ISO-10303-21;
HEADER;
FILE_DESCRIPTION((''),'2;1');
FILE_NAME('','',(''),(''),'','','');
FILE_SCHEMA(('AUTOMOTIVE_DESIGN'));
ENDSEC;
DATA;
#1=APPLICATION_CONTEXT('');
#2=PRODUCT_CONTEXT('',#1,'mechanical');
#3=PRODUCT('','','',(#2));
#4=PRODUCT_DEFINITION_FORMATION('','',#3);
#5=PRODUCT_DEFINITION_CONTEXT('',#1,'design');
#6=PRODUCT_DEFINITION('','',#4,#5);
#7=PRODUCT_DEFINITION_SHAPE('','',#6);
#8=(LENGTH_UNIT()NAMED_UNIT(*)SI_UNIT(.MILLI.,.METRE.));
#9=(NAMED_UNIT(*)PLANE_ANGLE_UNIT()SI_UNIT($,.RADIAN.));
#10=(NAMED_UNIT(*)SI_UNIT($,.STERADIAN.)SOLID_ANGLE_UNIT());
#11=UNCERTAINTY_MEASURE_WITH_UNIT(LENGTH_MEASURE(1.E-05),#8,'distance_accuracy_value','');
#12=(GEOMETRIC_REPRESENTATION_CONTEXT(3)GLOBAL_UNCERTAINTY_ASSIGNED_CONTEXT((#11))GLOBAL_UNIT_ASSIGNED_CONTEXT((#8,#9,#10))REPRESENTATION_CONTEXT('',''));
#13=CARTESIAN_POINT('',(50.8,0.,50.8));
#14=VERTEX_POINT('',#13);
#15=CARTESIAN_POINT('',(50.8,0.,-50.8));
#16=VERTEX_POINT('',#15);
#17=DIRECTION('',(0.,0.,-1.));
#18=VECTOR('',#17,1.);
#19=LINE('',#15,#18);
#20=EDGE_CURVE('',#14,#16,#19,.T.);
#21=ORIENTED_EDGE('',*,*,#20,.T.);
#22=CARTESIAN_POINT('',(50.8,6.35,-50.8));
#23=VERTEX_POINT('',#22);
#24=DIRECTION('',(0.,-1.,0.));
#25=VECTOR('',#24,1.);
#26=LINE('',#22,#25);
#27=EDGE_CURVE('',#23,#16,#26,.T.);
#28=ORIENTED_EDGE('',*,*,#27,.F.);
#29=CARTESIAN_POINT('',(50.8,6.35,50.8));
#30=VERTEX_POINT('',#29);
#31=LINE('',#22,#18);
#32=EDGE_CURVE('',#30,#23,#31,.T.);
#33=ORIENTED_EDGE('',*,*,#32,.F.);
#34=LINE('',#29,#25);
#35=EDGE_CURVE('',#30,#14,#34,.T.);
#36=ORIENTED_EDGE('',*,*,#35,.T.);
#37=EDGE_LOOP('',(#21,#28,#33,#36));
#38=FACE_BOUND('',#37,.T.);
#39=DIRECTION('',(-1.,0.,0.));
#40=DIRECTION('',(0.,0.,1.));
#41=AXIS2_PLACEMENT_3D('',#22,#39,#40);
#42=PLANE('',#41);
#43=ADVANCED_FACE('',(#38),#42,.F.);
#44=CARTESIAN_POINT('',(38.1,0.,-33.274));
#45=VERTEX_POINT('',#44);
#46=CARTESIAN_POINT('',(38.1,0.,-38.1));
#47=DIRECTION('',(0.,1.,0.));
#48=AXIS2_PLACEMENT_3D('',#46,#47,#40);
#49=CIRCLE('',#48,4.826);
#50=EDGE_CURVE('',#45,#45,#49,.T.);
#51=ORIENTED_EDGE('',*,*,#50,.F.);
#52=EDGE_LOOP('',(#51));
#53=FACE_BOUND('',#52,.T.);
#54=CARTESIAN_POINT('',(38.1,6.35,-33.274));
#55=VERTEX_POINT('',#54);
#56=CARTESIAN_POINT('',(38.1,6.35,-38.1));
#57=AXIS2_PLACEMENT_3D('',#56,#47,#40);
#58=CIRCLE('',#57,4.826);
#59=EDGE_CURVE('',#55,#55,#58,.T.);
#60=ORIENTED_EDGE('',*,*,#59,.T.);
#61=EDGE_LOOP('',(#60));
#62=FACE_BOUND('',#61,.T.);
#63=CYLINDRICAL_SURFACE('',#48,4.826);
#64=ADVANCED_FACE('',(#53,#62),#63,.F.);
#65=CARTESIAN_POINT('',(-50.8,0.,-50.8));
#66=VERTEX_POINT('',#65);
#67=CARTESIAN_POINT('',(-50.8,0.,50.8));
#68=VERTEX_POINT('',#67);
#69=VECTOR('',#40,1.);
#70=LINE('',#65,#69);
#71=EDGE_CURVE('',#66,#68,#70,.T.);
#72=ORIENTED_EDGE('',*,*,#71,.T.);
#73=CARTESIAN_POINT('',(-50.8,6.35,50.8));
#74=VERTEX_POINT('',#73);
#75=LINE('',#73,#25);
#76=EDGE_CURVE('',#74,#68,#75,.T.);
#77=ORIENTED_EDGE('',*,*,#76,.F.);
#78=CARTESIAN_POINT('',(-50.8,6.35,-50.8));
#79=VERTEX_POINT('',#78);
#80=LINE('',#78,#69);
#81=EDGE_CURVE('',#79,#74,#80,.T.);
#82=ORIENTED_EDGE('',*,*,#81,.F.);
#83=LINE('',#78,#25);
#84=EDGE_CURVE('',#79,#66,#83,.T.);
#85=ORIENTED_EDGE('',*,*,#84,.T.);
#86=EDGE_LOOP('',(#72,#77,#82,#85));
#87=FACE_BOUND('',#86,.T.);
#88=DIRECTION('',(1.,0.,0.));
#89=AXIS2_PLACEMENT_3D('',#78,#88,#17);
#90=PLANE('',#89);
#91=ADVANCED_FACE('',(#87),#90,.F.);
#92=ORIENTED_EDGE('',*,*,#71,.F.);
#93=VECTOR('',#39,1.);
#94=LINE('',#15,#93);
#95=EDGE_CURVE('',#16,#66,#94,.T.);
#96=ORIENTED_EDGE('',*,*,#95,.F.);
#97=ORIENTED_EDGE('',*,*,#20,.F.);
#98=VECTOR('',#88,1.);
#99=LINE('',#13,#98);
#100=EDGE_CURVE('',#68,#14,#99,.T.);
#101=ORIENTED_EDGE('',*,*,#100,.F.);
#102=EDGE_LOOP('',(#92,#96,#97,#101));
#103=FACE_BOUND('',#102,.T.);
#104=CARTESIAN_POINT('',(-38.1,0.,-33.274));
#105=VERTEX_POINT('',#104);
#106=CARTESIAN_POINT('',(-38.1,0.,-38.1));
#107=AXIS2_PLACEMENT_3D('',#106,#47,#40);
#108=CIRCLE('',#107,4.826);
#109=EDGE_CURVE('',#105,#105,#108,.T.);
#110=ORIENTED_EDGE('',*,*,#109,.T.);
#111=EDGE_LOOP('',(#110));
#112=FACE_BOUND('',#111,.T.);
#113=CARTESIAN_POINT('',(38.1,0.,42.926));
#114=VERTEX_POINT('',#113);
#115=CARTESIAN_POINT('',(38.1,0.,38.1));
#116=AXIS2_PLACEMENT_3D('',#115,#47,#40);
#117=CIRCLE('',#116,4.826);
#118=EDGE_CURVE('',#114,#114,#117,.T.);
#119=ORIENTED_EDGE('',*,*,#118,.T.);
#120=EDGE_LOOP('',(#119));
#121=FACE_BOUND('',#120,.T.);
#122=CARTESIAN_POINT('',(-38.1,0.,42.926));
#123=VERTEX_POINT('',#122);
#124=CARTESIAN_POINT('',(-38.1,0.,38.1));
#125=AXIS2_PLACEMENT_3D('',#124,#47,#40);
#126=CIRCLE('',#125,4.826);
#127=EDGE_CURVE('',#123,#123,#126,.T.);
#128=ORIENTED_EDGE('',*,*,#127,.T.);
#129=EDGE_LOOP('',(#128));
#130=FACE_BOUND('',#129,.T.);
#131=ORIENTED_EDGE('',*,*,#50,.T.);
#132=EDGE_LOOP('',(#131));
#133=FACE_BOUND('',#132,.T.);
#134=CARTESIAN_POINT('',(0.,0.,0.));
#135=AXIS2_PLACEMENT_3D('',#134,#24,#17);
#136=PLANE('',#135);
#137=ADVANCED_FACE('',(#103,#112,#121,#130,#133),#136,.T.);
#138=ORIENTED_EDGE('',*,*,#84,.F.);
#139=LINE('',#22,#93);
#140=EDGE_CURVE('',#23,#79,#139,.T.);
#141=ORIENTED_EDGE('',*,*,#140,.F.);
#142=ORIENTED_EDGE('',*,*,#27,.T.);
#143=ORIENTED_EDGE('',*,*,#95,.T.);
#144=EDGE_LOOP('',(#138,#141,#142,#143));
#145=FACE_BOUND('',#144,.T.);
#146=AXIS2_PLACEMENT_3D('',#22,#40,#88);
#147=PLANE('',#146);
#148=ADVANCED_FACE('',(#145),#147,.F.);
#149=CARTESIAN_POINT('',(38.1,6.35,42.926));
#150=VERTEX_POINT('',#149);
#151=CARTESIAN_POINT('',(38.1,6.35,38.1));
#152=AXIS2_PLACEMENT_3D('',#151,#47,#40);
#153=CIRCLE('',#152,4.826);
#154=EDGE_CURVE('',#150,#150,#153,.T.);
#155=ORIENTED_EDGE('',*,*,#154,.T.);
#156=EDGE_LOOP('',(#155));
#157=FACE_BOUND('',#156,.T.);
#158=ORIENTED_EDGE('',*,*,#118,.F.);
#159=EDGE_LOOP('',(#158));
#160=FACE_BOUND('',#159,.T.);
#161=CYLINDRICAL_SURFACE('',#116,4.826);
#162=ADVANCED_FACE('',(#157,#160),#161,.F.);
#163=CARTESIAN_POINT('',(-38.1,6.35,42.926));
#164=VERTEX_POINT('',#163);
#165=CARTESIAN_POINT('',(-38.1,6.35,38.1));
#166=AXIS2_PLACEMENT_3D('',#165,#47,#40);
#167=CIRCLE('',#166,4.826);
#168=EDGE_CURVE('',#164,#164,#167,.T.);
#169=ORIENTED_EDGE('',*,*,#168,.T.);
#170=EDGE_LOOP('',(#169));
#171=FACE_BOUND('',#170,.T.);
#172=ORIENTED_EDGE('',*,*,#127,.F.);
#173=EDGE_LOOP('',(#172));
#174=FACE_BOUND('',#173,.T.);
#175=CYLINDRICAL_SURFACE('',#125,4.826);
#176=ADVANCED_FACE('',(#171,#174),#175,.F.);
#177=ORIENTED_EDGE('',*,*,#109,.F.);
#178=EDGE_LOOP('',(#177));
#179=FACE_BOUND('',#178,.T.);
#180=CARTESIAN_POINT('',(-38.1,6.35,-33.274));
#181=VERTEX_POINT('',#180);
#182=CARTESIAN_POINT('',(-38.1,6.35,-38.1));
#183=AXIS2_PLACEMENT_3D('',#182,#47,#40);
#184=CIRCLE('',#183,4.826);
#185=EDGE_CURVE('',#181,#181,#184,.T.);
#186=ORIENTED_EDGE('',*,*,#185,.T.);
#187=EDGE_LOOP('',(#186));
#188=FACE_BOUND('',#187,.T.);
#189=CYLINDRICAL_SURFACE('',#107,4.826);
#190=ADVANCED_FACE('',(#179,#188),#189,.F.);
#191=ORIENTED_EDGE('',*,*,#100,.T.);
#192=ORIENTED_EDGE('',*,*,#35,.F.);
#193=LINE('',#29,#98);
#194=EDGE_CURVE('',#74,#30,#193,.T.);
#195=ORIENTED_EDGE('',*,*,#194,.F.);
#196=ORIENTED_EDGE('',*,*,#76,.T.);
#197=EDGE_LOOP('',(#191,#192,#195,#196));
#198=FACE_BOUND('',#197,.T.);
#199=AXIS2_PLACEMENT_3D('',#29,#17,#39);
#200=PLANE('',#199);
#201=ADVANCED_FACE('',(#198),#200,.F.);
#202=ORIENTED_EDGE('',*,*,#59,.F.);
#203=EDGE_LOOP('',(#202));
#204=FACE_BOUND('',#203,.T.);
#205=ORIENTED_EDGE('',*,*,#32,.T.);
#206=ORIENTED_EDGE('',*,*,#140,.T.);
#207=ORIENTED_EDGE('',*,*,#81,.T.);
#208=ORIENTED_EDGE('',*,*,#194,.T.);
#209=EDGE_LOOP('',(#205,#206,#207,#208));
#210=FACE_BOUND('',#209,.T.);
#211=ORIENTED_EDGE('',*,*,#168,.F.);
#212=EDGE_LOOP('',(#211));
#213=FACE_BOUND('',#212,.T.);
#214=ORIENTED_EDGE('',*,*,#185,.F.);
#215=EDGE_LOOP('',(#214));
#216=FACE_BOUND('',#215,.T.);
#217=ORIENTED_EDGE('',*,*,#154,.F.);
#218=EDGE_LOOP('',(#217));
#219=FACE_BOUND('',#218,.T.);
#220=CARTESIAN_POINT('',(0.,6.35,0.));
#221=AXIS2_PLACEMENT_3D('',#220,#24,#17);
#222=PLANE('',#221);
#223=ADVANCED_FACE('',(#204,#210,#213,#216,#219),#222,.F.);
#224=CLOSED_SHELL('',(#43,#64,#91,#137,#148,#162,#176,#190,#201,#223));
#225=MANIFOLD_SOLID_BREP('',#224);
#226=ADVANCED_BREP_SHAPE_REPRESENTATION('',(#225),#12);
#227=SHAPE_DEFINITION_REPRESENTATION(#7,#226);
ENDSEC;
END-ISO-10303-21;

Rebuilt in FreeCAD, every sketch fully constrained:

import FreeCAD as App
import Part
import Sketcher

V = App.Vector
Q = App.Units.Quantity


def add_polygon(sketch, points):
    """Adds a closed chain of lines whose ends are joined by coincident constraints."""
    first, n = sketch.GeometryCount, len(points)
    for a, b in zip(points, points[1:] + points[:1]):
        sketch.addGeometry(Part.LineSegment(App.Vector(*a, 0), App.Vector(*b, 0)), False)
    for i in range(n):
        sketch.addConstraint(Sketcher.Constraint("Coincident", first + i, 2, first + (i + 1) % n, 1))

doc = App.newDocument("Part")
body = doc.addObject("PartDesign::Body", "Body")

sketch1 = doc.addObject("Sketcher::SketchObject", "Sketch")
body.addObject(sketch1)
sketch1.AttachmentSupport = (doc.XZ_Plane, [""])
sketch1.MapMode = "FlatFace"
add_polygon(sketch1, [(-51, -51), (-51, 51), (51, 51), (51, -51)])
sketch1.addConstraint(Sketcher.Constraint("Vertical", 0))
sketch1.addConstraint(Sketcher.Constraint("Horizontal", 1))
sketch1.addConstraint(Sketcher.Constraint("Vertical", 2))
sketch1.addConstraint(Sketcher.Constraint("Horizontal", 3))
sketch1.addConstraint(Sketcher.Constraint("Symmetric", 0, 2, 2, 2, -1, 1))
sketch1.addConstraint(Sketcher.Constraint("Equal", 3, 0))
sketch1.addConstraint(Sketcher.Constraint("DistanceX", 1, 1, 1, 2, Q("4 in")))
pad1 = doc.addObject("PartDesign::Pad", "Pad")
body.addObject(pad1)
pad1.Profile = sketch1
pad1.Length = Q("0.25 in")
pad1.Reversed = True

sketch2 = doc.addObject("Sketcher::SketchObject", "Sketch001")
body.addObject(sketch2)
sketch2.AttachmentSupport = (doc.XZ_Plane, [""])
sketch2.MapMode = "FlatFace"
sketch2.AttachmentOffset = App.Placement(V(0, 0, -0.25 * 25.4), App.Rotation())
sketch2.addGeometry(Part.Circle(V(-38.1, -38.1, 0), V(0, 0, 1), 4.8), False)
sketch2.addGeometry(Part.Circle(V(38.1, -38.1, 0), V(0, 0, 1), 4.8), False)
sketch2.addGeometry(Part.Circle(V(38.1, 38.1, 0), V(0, 0, 1), 4.8), False)
sketch2.addGeometry(Part.Circle(V(-38.1, 38.1, 0), V(0, 0, 1), 4.8), False)
sketch2.addConstraint(Sketcher.Constraint("Equal", 0, 1))
sketch2.addConstraint(Sketcher.Constraint("Equal", 1, 2))
sketch2.addConstraint(Sketcher.Constraint("Equal", 2, 3))
sketch2.addConstraint(Sketcher.Constraint("Symmetric", 0, 3, 2, 3, -1, 1))
sketch2.addConstraint(Sketcher.Constraint("Symmetric", 1, 3, 3, 3, -1, 1))
sketch2.addConstraint(Sketcher.Constraint("Symmetric", 0, 3, 1, 3, -2))
sketch2.addConstraint(Sketcher.Constraint("Diameter", 0, Q("0.38 in")))
sketch2.addConstraint(Sketcher.Constraint("DistanceX", 0, 3, 1, 3, Q("3 in")))
sketch2.addConstraint(Sketcher.Constraint("DistanceY", 1, 3, 2, 3, Q("3 in")))
pocket1 = doc.addObject("PartDesign::Pocket", "Pocket")
body.addObject(pocket1)
pocket1.Profile = sketch2
pocket1.Length = Q("0.25 in")
pocket1.Reversed = True

doc.recompute()
